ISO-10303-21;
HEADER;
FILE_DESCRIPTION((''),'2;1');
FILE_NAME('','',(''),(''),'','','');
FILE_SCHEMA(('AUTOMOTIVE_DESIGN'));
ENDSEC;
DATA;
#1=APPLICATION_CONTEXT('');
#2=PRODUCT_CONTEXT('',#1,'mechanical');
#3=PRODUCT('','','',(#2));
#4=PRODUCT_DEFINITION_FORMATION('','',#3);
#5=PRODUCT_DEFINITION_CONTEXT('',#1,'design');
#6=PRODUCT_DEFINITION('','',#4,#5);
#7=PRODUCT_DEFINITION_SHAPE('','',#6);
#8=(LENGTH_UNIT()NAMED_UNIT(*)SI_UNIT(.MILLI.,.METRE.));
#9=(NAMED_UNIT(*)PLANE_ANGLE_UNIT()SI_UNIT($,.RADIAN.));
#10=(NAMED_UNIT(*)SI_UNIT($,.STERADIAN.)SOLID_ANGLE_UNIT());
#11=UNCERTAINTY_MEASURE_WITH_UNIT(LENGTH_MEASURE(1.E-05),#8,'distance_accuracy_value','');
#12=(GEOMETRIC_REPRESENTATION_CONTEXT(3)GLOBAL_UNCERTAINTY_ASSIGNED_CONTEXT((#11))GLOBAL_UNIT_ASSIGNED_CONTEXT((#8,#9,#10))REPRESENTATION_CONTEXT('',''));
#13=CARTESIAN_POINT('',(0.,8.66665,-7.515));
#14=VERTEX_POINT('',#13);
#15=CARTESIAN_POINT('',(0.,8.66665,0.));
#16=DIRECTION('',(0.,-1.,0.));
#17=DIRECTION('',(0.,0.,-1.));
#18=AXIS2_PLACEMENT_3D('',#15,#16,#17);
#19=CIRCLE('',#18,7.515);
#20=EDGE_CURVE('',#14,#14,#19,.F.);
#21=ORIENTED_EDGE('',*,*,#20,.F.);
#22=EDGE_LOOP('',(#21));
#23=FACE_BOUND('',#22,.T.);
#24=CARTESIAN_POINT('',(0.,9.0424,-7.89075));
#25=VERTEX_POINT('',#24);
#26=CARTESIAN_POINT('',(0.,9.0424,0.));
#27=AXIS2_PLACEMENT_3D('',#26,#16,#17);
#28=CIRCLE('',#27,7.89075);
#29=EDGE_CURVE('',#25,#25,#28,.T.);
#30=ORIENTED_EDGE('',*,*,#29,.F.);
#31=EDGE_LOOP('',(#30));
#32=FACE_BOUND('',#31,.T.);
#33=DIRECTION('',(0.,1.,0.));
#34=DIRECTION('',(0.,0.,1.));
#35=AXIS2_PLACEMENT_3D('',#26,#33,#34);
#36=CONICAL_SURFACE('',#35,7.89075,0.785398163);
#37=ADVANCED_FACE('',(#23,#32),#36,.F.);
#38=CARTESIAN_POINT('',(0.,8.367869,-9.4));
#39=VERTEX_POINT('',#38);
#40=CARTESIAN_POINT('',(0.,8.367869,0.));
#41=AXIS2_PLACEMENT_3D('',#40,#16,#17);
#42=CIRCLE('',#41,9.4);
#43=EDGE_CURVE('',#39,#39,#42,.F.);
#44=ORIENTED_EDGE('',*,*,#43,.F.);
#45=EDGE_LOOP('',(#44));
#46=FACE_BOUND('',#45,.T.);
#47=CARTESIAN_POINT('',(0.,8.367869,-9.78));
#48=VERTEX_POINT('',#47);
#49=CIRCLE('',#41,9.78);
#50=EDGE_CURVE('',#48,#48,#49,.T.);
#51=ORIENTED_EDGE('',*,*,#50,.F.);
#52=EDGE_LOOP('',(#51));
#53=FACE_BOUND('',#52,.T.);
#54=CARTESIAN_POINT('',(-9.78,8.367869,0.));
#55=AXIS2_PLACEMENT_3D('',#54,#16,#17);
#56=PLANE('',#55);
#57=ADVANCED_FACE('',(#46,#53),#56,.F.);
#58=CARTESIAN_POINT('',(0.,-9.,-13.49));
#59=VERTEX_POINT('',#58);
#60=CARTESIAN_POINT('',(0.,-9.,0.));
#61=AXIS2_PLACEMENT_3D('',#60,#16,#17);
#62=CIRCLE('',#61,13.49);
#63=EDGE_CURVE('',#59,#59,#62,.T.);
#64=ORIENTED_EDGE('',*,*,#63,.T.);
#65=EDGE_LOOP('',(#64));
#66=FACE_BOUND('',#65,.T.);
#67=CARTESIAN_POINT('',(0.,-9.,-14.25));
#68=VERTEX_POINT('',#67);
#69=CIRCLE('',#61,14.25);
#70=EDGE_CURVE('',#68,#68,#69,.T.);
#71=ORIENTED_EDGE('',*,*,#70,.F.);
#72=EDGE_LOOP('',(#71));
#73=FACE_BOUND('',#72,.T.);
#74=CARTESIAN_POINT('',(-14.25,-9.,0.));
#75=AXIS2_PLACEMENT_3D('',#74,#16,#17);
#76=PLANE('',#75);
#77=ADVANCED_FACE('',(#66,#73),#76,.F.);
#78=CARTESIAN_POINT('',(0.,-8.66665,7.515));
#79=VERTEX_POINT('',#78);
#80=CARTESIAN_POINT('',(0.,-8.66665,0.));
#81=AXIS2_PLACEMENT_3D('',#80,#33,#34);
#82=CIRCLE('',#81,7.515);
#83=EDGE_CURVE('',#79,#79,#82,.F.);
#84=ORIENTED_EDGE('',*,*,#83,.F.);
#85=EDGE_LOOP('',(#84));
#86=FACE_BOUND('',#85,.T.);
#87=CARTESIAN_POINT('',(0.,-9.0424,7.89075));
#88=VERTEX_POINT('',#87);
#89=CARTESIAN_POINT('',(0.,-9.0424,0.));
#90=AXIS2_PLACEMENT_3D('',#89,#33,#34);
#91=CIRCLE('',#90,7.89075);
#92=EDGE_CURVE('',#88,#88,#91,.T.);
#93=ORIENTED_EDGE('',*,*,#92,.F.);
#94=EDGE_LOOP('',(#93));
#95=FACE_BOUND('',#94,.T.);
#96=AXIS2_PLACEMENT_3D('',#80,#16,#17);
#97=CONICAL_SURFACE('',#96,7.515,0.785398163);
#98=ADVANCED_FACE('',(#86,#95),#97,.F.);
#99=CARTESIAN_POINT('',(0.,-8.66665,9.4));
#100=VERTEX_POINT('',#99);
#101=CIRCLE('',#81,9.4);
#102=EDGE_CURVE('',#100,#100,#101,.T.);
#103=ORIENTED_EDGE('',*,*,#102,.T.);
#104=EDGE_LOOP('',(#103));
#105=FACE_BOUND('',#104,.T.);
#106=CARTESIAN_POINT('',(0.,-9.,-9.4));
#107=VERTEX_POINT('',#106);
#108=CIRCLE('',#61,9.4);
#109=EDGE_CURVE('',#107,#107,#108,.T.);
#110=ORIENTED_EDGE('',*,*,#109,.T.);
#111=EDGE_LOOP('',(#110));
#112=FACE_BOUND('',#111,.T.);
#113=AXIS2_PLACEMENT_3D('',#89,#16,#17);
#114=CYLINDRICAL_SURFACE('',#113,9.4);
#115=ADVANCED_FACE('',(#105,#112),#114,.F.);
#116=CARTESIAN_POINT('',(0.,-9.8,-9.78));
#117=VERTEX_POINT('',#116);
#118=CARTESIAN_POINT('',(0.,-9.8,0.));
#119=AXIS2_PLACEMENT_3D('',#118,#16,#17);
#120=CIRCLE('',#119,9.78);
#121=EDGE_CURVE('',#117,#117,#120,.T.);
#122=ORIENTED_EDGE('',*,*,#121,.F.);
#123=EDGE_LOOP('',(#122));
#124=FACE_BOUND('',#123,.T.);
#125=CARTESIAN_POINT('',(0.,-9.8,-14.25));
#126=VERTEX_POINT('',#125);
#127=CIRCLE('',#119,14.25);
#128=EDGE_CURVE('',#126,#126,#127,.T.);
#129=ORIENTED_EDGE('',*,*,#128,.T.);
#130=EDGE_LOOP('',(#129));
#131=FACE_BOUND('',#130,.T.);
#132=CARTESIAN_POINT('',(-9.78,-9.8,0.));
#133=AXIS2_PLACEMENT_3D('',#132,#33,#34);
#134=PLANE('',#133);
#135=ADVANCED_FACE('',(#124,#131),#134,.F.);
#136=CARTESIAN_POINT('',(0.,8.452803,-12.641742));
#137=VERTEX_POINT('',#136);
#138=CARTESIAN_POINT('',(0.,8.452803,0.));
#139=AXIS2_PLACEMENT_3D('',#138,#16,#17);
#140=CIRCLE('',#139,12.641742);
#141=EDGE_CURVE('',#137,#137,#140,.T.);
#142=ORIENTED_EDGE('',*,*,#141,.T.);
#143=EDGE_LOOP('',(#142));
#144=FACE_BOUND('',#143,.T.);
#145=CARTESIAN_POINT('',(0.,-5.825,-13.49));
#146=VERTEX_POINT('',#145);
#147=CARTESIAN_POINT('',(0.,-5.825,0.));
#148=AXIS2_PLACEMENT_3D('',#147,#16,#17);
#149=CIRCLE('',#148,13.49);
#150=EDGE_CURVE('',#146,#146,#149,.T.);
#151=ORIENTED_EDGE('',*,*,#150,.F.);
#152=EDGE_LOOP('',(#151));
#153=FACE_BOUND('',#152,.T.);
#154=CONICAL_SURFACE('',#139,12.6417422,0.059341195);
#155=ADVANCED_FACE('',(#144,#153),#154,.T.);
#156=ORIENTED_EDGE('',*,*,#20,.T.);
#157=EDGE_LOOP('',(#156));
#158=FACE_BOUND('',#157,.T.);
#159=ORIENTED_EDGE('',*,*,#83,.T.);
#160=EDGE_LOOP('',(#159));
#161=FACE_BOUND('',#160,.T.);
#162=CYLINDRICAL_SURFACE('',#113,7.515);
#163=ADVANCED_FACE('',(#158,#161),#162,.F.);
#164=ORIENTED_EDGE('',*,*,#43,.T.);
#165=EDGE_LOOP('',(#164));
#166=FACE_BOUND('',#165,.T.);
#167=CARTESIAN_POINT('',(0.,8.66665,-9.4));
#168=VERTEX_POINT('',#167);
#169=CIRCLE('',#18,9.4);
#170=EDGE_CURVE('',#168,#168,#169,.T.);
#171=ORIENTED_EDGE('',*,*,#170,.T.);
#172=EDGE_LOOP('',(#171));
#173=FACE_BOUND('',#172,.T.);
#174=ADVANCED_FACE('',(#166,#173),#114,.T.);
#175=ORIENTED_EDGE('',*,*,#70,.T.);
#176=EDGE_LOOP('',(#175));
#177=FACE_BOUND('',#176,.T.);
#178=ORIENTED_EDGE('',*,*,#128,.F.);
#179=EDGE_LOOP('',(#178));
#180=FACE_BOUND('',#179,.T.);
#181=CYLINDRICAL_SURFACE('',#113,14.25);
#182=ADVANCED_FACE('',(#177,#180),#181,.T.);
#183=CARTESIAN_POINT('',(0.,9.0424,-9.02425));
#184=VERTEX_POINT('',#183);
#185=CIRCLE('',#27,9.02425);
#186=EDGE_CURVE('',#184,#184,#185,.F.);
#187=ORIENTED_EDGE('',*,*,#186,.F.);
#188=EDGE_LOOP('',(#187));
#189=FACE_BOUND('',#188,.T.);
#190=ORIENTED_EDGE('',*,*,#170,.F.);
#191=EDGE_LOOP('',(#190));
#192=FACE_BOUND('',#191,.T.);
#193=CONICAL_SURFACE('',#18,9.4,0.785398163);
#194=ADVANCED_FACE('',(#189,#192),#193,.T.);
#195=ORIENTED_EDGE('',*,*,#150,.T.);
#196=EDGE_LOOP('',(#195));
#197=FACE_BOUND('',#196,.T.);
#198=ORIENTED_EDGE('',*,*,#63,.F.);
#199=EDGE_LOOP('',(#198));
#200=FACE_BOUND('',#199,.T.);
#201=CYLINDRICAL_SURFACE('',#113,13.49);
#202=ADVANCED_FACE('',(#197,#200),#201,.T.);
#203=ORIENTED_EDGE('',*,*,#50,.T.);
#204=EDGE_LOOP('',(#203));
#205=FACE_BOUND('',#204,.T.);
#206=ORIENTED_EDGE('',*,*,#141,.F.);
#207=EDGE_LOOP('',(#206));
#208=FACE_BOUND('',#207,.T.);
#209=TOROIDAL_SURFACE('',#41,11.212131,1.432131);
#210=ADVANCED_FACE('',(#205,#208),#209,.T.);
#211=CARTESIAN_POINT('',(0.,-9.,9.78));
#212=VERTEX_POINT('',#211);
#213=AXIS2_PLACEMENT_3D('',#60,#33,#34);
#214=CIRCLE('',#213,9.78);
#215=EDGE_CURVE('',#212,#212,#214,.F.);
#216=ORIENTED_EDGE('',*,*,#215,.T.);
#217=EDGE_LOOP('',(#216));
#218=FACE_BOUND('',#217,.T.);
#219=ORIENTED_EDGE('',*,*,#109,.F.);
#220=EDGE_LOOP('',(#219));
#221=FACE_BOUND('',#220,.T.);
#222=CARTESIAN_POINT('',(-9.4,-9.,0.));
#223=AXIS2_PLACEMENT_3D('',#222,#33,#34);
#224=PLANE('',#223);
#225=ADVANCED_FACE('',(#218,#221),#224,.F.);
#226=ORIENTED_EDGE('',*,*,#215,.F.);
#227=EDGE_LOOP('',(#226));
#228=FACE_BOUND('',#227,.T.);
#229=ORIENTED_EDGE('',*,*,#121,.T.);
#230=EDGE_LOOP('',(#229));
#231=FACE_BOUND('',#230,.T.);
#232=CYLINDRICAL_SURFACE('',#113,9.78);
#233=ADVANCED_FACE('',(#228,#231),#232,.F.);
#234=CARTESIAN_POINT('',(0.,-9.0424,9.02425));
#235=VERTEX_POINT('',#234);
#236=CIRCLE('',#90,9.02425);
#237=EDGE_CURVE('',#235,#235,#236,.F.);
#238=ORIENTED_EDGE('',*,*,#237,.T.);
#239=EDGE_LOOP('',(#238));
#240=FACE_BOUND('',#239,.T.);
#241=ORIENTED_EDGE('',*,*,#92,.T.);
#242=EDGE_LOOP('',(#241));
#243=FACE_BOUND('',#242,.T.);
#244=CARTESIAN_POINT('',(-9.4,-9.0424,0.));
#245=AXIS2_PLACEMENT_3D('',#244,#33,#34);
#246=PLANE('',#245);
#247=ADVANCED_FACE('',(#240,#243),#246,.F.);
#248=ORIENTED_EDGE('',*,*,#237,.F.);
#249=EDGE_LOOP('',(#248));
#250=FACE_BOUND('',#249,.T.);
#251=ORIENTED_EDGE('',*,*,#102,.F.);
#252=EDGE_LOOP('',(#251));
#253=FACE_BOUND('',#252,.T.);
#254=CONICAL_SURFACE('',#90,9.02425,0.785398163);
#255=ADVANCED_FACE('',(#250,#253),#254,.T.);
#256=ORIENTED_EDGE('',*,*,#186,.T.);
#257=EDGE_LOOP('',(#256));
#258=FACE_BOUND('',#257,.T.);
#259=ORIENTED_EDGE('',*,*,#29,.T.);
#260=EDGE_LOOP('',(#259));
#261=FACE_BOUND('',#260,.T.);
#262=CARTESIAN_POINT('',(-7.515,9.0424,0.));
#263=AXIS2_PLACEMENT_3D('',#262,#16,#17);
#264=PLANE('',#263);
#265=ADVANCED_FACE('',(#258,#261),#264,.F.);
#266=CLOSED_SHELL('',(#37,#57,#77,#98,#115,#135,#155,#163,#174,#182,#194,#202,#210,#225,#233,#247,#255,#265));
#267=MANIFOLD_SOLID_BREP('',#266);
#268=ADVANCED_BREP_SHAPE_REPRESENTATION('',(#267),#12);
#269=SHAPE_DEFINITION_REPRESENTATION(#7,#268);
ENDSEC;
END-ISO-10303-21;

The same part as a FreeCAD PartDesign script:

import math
import FreeCAD as App
import Part
import Sketcher
from FreeCAD import Vector
Q = App.Units.Quantity


def edges_at(feature, points):
    """Names of the edges that pass closest to the given points."""
    edges = feature.Shape.Edges
    near = lambda p: min(range(len(edges)), key=lambda i: edges[i].distToShape(Part.Vertex(*p))[0])
    return sorted({f"Edge{near(p) + 1}" for p in points})


def add_polygon(sketch, points):
    """Adds a closed chain of lines whose ends are joined by coincident constraints."""
    first, n = sketch.GeometryCount, len(points)
    for a, b in zip(points, points[1:] + points[:1]):
        sketch.addGeometry(Part.LineSegment(App.Vector(*a, 0), App.Vector(*b, 0)), False)
    for i in range(n):
        sketch.addConstraint(Sketcher.Constraint("Coincident", first + i, 2, first + (i + 1) % n, 1))

doc = App.newDocument("Part")
body = doc.addObject("PartDesign::Body", "Body")

# Sketch on XY plane
sketch1 = body.newObject("Sketcher::SketchObject", "Sketch")
sketch1.AttachmentSupport = (doc.getObject("XY_Plane"), [""])
sketch1.MapMode = "FlatFace"
sketch1.addGeometry(Part.LineSegment(Vector(-14.25, -9, 0), Vector(-14.25, -9.8, 0)), False)
sketch1.addGeometry(Part.LineSegment(Vector(-14.25, -9.8, 0), Vector(-9.78, -9.8, 0)), False)
sketch1.addGeometry(Part.LineSegment(Vector(-9.78, -9.8, 0), Vector(-9.78, 8.367869, 0)), False)
sketch1.addGeometry(Part.ArcOfCircle(Part.Circle(Vector(-11.212131, 8.367869, 0), Vector(0, 0, 1), 1.432131), math.radians(0), math.radians(176.6)), False)
sketch1.addGeometry(Part.LineSegment(Vector(-12.641742, 8.452803, 0), Vector(-13.49, -5.825, 0)), False)
sketch1.addGeometry(Part.LineSegment(Vector(-13.49, -5.825, 0), Vector(-13.49, -9, 0)), False)
sketch1.addGeometry(Part.LineSegment(Vector(-13.49, -9, 0), Vector(-14.25, -9, 0)), False)
sketch1.addConstraint(Sketcher.Constraint("Coincident", 0, 2, 1, 1))
sketch1.addConstraint(Sketcher.Constraint("Coincident", 1, 2, 2, 1))
sketch1.addConstraint(Sketcher.Constraint("Tangent", 2, 2, 3, 1))
sketch1.addConstraint(Sketcher.Constraint("Tangent", 3, 2, 4, 1))
sketch1.addConstraint(Sketcher.Constraint("Coincident", 4, 2, 5, 1))
sketch1.addConstraint(Sketcher.Constraint("Coincident", 5, 2, 6, 1))
sketch1.addConstraint(Sketcher.Constraint("Coincident", 6, 2, 0, 1))
sketch1.addConstraint(Sketcher.Constraint("Vertical", 0))
sketch1.addConstraint(Sketcher.Constraint("Horizontal", 1))
sketch1.addConstraint(Sketcher.Constraint("Vertical", 2))
sketch1.addConstraint(Sketcher.Constraint("Vertical", 5))
sketch1.addConstraint(Sketcher.Constraint("Horizontal", 6))
sketch1.addConstraint(Sketcher.Constraint("Angle", 4, Q("-93.4 deg")))
sketch1.addConstraint(Sketcher.Constraint("DistanceY", 5, 2, 5, 1, Q("0.125 in")))
sketch1.addConstraint(Sketcher.Constraint("Radius", 3, 1.432131))
sketch1.addConstraint(Sketcher.Constraint("DistanceX", 1, 1, 1, 2, 4.47))
sketch1.addConstraint(Sketcher.Constraint("DistanceX", 6, 2, 6, 1, 0.76))
sketch1.addConstraint(Sketcher.Constraint("DistanceY", 0, 2, 0, 1, 0.8))
sketch1.addConstraint(Sketcher.Constraint("DistanceX", 0, 2, -1, 1, 14.25))
sketch1.addConstraint(Sketcher.Constraint("DistanceY", 0, 2, -1, 1, 9.8))
revolution = body.newObject("PartDesign::Revolution", "Revolution")
revolution.Profile = sketch1
revolution.ReferenceAxis = (sketch1, ["V_Axis"])
revolution.Angle = 360
body2 = doc.addObject("PartDesign::Body", "Body001")

# Sketch on XY plane
sketch2 = body2.newObject("Sketcher::SketchObject", "Sketch001")
sketch2.AttachmentSupport = (doc.getObject("XY_Plane001"), [""])
sketch2.MapMode = "FlatFace"
add_polygon(sketch2, [(-9.4, 9.0424), (-9.4, -9.0424), (-7.515, -9.0424), (-7.515, 9.0424)])  # lines 0-3
sketch2.addConstraint(Sketcher.Constraint("Vertical", 0))
sketch2.addConstraint(Sketcher.Constraint("Horizontal", 1))
sketch2.addConstraint(Sketcher.Constraint("Vertical", 2))
sketch2.addConstraint(Sketcher.Constraint("Horizontal", 3))
sketch2.addConstraint(Sketcher.Constraint("DistanceY", 0, 2, 0, 1, Q("0.712 in")))
sketch2.addConstraint(Sketcher.Constraint("DistanceY", 0, 2, -1, 1, Q("0.356 in")))
sketch2.addConstraint(Sketcher.Constraint("DistanceX", 1, 1, 1, 2, 1.885))
sketch2.addConstraint(Sketcher.Constraint("DistanceX", 0, 2, -1, 1, 9.4))
revolution2 = body2.newObject("PartDesign::Revolution", "Revolution001")
revolution2.Profile = sketch2
revolution2.ReferenceAxis = (sketch2, ["V_Axis"])
revolution2.Angle = 360
doc.recompute()

chamfer = body2.newObject("PartDesign::Chamfer", "Chamfer")
chamfer.Base = (revolution2, edges_at(revolution2, [
    (7.515, 9.042, 0),
    (7.515, -9.042, 0),
    (9.4, -9.042, 0),
    (9.4, 9.042, 0),
]))
chamfer.Size = 0.37575
body.AllowCompound = True
doc.recompute()

boolean = body.newObject("PartDesign::Boolean", "Boolean")
boolean.Type = "Fuse"
boolean.addObjects([body2])

# Sketch on XY plane
sketch3 = body.newObject("Sketcher::SketchObject", "Sketch002")
sketch3.AttachmentSupport = (doc.getObject("XY_Plane"), [""])
sketch3.MapMode = "FlatFace"
add_polygon(sketch3, [(-9.78, 8.367869), (-9.78, -9), (-9.4, -9), (-9.4, 8.367869)])  # lines 0-3
sketch3.addConstraint(Sketcher.Constraint("Vertical", 0))
sketch3.addConstraint(Sketcher.Constraint("Horizontal", 1))
sketch3.addConstraint(Sketcher.Constraint("Vertical", 2))
sketch3.addConstraint(Sketcher.Constraint("Horizontal", 3))
sketch3.addConstraint(Sketcher.Constraint("DistanceX", 1, 1, 1, 2, 0.38))
sketch3.addConstraint(Sketcher.Constraint("DistanceY", 0, 2, 0, 1, 17.367869))
sketch3.addConstraint(Sketcher.Constraint("DistanceX", 0, 2, -1, 1, 9.78))
sketch3.addConstraint(Sketcher.Constraint("DistanceY", 0, 2, -1, 1, 9.0))
revolution3 = body.newObject("PartDesign::Revolution", "Revolution002")
revolution3.Profile = sketch3
revolution3.ReferenceAxis = (sketch3, ["V_Axis"])
revolution3.Angle = 360

doc.recompute()
